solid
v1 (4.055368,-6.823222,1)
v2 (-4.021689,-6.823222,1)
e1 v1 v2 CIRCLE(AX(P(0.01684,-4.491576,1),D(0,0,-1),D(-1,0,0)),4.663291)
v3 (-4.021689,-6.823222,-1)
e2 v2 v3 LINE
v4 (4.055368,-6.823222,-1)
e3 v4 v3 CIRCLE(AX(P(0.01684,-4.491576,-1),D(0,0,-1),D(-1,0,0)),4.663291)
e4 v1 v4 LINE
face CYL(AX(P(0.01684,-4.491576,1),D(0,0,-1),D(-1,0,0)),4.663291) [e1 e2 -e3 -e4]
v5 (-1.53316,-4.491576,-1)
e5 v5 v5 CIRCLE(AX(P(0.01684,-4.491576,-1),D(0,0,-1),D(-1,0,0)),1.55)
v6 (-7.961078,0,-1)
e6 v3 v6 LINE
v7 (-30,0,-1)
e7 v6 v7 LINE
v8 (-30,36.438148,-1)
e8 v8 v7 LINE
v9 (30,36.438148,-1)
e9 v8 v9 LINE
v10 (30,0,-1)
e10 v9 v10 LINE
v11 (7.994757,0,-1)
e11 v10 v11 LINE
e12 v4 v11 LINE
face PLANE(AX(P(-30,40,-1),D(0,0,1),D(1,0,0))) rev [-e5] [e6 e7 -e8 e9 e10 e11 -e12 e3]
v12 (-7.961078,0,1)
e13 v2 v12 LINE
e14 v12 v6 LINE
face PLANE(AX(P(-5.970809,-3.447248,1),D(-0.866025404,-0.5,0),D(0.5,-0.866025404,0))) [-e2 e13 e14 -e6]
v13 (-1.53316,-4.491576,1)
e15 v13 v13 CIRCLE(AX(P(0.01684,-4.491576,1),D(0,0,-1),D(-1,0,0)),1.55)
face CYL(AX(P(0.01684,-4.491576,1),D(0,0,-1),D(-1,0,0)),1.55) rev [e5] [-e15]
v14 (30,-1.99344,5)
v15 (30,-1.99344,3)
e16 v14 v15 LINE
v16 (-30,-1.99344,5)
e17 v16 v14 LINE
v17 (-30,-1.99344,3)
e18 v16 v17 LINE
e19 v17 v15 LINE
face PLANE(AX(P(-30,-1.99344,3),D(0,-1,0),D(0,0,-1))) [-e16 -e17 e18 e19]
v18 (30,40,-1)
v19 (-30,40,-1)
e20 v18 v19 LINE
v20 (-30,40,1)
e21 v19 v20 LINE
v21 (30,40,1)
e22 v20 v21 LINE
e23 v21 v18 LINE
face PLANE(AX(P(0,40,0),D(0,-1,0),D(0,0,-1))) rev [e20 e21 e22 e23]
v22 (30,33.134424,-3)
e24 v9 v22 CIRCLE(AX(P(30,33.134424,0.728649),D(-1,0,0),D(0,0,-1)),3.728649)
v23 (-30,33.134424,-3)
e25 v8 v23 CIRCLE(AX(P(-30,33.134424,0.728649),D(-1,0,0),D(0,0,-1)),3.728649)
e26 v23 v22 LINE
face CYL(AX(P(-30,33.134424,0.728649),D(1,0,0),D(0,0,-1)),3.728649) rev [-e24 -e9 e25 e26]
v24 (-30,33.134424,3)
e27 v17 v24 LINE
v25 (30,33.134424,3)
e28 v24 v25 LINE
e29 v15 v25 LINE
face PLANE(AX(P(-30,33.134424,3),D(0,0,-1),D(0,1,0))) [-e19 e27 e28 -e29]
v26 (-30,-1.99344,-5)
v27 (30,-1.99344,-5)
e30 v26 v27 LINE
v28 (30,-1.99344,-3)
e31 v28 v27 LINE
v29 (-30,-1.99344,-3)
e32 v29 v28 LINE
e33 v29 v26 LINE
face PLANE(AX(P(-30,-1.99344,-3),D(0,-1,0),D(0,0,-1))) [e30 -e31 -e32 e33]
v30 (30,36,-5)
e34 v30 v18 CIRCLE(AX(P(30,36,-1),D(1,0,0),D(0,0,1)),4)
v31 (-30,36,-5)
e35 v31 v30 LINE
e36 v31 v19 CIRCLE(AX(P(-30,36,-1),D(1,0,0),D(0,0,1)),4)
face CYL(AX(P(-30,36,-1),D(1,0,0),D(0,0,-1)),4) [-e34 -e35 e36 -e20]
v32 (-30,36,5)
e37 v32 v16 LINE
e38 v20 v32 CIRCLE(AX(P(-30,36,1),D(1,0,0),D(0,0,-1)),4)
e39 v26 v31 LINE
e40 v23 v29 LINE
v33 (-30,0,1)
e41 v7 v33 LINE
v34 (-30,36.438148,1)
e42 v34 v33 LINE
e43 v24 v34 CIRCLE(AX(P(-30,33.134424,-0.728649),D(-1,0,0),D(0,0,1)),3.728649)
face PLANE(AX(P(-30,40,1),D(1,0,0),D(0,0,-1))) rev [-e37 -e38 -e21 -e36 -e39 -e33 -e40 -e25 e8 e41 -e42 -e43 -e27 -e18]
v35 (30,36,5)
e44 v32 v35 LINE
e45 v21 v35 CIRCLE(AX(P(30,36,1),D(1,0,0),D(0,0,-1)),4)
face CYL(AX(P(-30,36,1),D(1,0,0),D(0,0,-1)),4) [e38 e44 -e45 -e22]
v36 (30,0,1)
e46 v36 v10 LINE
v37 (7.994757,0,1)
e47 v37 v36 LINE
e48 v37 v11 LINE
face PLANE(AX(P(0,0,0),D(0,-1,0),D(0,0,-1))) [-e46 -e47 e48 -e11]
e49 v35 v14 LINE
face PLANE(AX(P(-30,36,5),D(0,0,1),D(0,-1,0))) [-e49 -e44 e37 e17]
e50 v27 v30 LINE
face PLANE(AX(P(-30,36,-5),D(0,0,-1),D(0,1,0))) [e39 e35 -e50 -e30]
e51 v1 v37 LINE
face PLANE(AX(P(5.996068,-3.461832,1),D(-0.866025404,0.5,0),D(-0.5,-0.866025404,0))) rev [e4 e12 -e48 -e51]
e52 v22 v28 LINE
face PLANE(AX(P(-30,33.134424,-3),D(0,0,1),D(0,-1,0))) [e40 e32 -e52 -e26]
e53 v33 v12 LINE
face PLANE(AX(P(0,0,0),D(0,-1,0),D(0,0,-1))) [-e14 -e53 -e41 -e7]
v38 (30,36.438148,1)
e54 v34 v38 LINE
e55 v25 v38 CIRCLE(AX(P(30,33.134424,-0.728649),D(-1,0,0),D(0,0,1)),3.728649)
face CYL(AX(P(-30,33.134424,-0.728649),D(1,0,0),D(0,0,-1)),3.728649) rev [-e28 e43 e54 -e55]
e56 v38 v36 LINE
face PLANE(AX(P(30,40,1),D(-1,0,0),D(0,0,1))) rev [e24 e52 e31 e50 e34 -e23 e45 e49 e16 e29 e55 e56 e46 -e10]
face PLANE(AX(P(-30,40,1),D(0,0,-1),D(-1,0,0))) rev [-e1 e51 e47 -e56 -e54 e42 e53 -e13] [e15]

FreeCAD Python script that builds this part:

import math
import FreeCAD as App
import Part
import Sketcher
Q = App.Units.Quantity


def add_polygon(sketch, points):
    """Adds a closed chain of lines whose ends are joined by coincident constraints."""
    first, n = sketch.GeometryCount, len(points)
    for a, b in zip(points, points[1:] + points[:1]):
        sketch.addGeometry(Part.LineSegment(App.Vector(*a, 0), App.Vector(*b, 0)), False)
    for i in range(n):
        sketch.addConstraint(Sketcher.Constraint("Coincident", first + i, 2, first + (i + 1) % n, 1))

doc = App.newDocument("Part")
body = doc.addObject("PartDesign::Body", "Body")

sketch1 = doc.addObject("Sketcher::SketchObject", "Sketch")
body.addObject(sketch1)
sketch1.AttachmentSupport = (doc.XZ_Plane, [""])
sketch1.MapMode = "FlatFace"
add_polygon(sketch1, [(-30, -1), (-30, 1), (30, 1), (30, -1)])
sketch1.addConstraint(Sketcher.Constraint("Vertical", 0))
sketch1.addConstraint(Sketcher.Constraint("Horizontal", 1))
sketch1.addConstraint(Sketcher.Constraint("Vertical", 2))
sketch1.addConstraint(Sketcher.Constraint("Horizontal", 3))
sketch1.addConstraint(Sketcher.Constraint("Symmetric", 0, 2, 2, 2, -1, 1))
sketch1.addConstraint(Sketcher.Constraint("DistanceX", 1, 1, 1, 2, Q("60 mm")))
sketch1.addConstraint(Sketcher.Constraint("DistanceY", 0, 1, 0, 2, Q("2 mm")))
pad1 = doc.addObject("PartDesign::Pad", "Pad")
body.addObject(pad1)
pad1.Profile = sketch1
pad1.Length = 40
pad1.Reversed = True
body2 = doc.addObject("PartDesign::Body", "Body001")

sketch2 = doc.addObject("Sketcher::SketchObject", "Sketch001")
body2.addObject(sketch2)
sketch2.AttachmentSupport = (doc.getObject("XY_Plane001"), [""])
sketch2.MapMode = "FlatFace"
sketch2.AttachmentOffset = App.Placement(App.Vector(0, 0, -1), App.Rotation())
sketch2.addGeometry(Part.LineSegment(App.Vector(8, 0, 0), App.Vector(4.1, -6.8, 0)), False)
sketch2.addGeometry(Part.ArcOfCircle(Part.Circle(App.Vector(0, -4.5, 0), App.Vector(0, 0, 1), 4.7), math.radians(-150), math.radians(-30)), False)
sketch2.addGeometry(Part.LineSegment(App.Vector(-4, -6.8, 0), App.Vector(-8, 0, 0)), False)
sketch2.addGeometry(Part.LineSegment(App.Vector(-8, 0, 0), App.Vector(8, 0, 0)), False)
sketch2.addGeometry(Part.Circle(App.Vector(0, -4.5, 0), App.Vector(0, 0, 1), 1.6), False)
sketch2.addConstraint(Sketcher.Constraint("Tangent", 0, 2, 1, 2))
sketch2.addConstraint(Sketcher.Constraint("Tangent", 1, 1, 2, 1))
sketch2.addConstraint(Sketcher.Constraint("Coincident", 2, 2, 3, 1))
sketch2.addConstraint(Sketcher.Constraint("Coincident", 3, 2, 0, 1))
sketch2.addConstraint(Sketcher.Constraint("Horizontal", 3))
sketch2.addConstraint(Sketcher.Constraint("Coincident", 4, 3, 1, 3))
sketch2.addConstraint(Sketcher.Constraint("PointOnObject", 2, 2, -1))
sketch2.addConstraint(Sketcher.Constraint("Horizontal", 0, 2, 1, 1))
sketch2.addConstraint(Sketcher.Constraint("Diameter", 4, Q("3.1 mm")))
sketch2.addConstraint(Sketcher.Constraint("Angle", 0, Q("-120 deg")))
sketch2.addConstraint(Sketcher.Constraint("Radius", 1, Q("4.663291 mm")))
sketch2.addConstraint(Sketcher.Constraint("DistanceX", 3, 1, 3, 2, Q("15.955836 mm")))
sketch2.addConstraint(Sketcher.Constraint("DistanceX", -1, 1, 1, 3, Q("0.01684 mm")))
pad2 = doc.addObject("PartDesign::Pad", "Pad001")
body2.addObject(pad2)
pad2.Profile = sketch2
pad2.Length = 2
doc.recompute()

boolean = doc.addObject("PartDesign::Boolean", "Boolean")
body.addObject(boolean)
boolean.Type = "Fuse"
boolean.addObjects([body2])

sketch3 = doc.addObject("Sketcher::SketchObject", "Sketch002")
body.addObject(sketch3)
sketch3.AttachmentSupport = (doc.YZ_Plane, [""])
sketch3.MapMode = "FlatFace"
sketch3.AttachmentOffset = App.Placement(App.Vector(0, 0, 30), App.Rotation())
sketch3.addGeometry(Part.LineSegment(App.Vector(-2, -5, 0), App.Vector(36, -5, 0)), False)
sketch3.addGeometry(Part.ArcOfCircle(Part.Circle(App.Vector(36, -1, 0), App.Vector(0, 0, 1), 4), math.radians(-90), math.radians(0)), False)
sketch3.addGeometry(Part.LineSegment(App.Vector(40, -1, 0), App.Vector(36.4, -1, 0)), False)
sketch3.addGeometry(Part.ArcOfCircle(Part.Circle(App.Vector(33.1, 0.7, 0), App.Vector(0, 0, 1), 3.7), math.radians(-90), math.radians(-28)), False)
sketch3.addGeometry(Part.LineSegment(App.Vector(33.1, -3, 0), App.Vector(-2, -3, 0)), False)
sketch3.addGeometry(Part.LineSegment(App.Vector(-2, -3, 0), App.Vector(-2, -5, 0)), False)
sketch3.addGeometry(Part.LineSegment(App.Vector(36, 5, 0), App.Vector(-2, 5, 0)), False)
sketch3.addGeometry(Part.LineSegment(App.Vector(-2, 5, 0), App.Vector(-2, 3, 0)), False)
sketch3.addGeometry(Part.LineSegment(App.Vector(-2, 3, 0), App.Vector(33.1, 3, 0)), False)
sketch3.addGeometry(Part.ArcOfCircle(Part.Circle(App.Vector(33.1, -0.7, 0), App.Vector(0, 0, 1), 3.7), math.radians(28), math.radians(90)), False)
sketch3.addGeometry(Part.LineSegment(App.Vector(36.4, 1, 0), App.Vector(40, 1, 0)), False)
sketch3.addGeometry(Part.ArcOfCircle(Part.Circle(App.Vector(36, 1, 0), App.Vector(0, 0, 1), 4), math.radians(0), math.radians(90)), False)
sketch3.addConstraint(Sketcher.Constraint("Tangent", 0, 2, 1, 1))
sketch3.addConstraint(Sketcher.Constraint("Coincident", 1, 2, 2, 1))
sketch3.addConstraint(Sketcher.Constraint("Coincident", 2, 2, 3, 2))
sketch3.addConstraint(Sketcher.Constraint("Tangent", 3, 1, 4, 1))
sketch3.addConstraint(Sketcher.Constraint("Coincident", 4, 2, 5, 1))
sketch3.addConstraint(Sketcher.Constraint("Coincident", 5, 2, 0, 1))
sketch3.addConstraint(Sketcher.Constraint("Coincident", 6, 2, 7, 1))
sketch3.addConstraint(Sketcher.Constraint("Coincident", 7, 2, 8, 1))
sketch3.addConstraint(Sketcher.Constraint("Tangent", 8, 2, 9, 2))
sketch3.addConstraint(Sketcher.Constraint("Coincident", 9, 1, 10, 1))
sketch3.addConstraint(Sketcher.Constraint("Coincident", 10, 2, 11, 1))
sketch3.addConstraint(Sketcher.Constraint("Tangent", 11, 2, 6, 1))
sketch3.addConstraint(Sketcher.Constraint("Horizontal", 0))
sketch3.addConstraint(Sketcher.Constraint("Horizontal", 2))
sketch3.addConstraint(Sketcher.Constraint("Horizontal", 4))
sketch3.addConstraint(Sketcher.Constraint("Vertical", 5))
sketch3.addConstraint(Sketcher.Constraint("Horizontal", 6))
sketch3.addConstraint(Sketcher.Constraint("Vertical", 7))
sketch3.addConstraint(Sketcher.Constraint("Horizontal", 8))
sketch3.addConstraint(Sketcher.Constraint("Horizontal", 10))
sketch3.addConstraint(Sketcher.Constraint("Equal", 3, 9))
sketch3.addConstraint(Sketcher.Constraint("Equal", 1, 11))
sketch3.addConstraint(Sketcher.Constraint("Symmetric", 3, 3, 9, 3, -1))
sketch3.addConstraint(Sketcher.Constraint("Symmetric", 1, 3, 11, 3, -1))
sketch3.addConstraint(Sketcher.Constraint("Horizontal", 11, 3, 9, 1))
sketch3.addConstraint(Sketcher.Constraint("Vertical", 5, 2, 6, 2))
sketch3.addConstraint(Sketcher.Constraint("Vertical", 2, 2, 9, 1))
sketch3.addConstraint(Sketcher.Constraint("Radius", 1, Q("4 mm")))
sketch3.addConstraint(Sketcher.Constraint("DistanceY", 5, 2, 5, 1, Q("2 mm")))
sketch3.addConstraint(Sketcher.Constraint("DistanceX", -1, 1, 1, 3, Q("36 mm")))
sketch3.addConstraint(Sketcher.Constraint("DistanceY", 1, 3, -1, 1, Q("1 mm")))
sketch3.addConstraint(Sketcher.Constraint("Radius", 3, Q("3.728649 mm")))
sketch3.addConstraint(Sketcher.Constraint("DistanceX", 0, 1, 0, 2, Q("37.99344 mm")))
sketch3.addConstraint(Sketcher.Constraint("DistanceX", 2, 2, 2, 1, Q("3.561852 mm")))
pad3 = doc.addObject("PartDesign::Pad", "Pad002")
body.addObject(pad3)
pad3.Profile = sketch3
pad3.Type = "UpToLast"
pad3.Reversed = True

doc.recompute()
